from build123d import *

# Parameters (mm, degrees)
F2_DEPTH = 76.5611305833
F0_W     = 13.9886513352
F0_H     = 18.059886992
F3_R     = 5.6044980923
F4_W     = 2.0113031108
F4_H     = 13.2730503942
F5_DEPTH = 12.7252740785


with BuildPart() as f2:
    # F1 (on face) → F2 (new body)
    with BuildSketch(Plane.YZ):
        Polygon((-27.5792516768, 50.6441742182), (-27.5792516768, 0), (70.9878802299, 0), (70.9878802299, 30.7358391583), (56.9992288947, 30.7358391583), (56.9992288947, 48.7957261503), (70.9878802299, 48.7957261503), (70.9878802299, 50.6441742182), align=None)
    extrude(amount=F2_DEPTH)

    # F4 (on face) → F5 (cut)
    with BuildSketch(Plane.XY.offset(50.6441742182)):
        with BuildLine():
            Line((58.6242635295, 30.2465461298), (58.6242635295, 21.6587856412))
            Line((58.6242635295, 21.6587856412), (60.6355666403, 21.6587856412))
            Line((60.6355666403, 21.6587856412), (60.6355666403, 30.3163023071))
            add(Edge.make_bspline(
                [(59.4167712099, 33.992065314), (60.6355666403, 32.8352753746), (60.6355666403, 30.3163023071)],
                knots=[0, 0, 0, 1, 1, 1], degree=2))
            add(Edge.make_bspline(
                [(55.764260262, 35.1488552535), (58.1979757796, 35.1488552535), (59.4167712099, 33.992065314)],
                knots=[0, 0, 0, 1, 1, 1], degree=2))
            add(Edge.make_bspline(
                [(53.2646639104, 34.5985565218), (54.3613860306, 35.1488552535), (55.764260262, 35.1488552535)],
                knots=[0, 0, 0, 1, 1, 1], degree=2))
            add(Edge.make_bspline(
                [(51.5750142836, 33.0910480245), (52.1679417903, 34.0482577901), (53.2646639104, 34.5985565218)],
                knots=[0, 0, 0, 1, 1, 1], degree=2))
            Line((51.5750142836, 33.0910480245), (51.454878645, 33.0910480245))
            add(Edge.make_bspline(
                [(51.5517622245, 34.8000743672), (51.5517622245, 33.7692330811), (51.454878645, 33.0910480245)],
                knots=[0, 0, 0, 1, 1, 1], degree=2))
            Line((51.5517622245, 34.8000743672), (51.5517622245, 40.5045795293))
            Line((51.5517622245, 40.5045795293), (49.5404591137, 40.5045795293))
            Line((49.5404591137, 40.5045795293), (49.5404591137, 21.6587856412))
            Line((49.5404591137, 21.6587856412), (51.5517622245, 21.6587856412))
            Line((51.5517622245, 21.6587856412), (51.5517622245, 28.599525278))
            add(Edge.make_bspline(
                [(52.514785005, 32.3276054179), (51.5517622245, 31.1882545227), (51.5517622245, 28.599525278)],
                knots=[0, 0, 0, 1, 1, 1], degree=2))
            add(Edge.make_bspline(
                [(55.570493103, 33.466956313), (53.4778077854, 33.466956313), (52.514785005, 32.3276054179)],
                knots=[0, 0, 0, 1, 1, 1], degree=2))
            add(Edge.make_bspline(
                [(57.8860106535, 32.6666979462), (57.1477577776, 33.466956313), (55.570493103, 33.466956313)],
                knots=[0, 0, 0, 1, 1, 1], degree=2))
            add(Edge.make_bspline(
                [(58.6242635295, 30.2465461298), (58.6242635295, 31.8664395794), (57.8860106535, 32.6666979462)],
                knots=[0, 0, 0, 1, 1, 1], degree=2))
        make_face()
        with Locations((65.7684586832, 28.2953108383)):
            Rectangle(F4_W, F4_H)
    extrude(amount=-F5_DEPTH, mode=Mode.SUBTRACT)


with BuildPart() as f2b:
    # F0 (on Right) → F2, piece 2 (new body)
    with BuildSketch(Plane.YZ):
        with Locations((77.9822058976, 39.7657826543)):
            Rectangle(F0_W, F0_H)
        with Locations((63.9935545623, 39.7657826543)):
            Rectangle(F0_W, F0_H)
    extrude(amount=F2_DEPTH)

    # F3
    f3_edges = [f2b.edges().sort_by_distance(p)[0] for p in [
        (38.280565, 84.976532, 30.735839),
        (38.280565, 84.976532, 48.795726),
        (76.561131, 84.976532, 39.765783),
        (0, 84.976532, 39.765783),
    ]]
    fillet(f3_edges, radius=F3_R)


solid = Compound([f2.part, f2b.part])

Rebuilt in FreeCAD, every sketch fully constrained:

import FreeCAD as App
import Part
import Sketcher
Q = App.Units.Quantity


def edges_at(feature, points):
    """Names of the edges that pass closest to the given points."""
    edges = feature.Shape.Edges
    near = lambda p: min(range(len(edges)), key=lambda i: edges[i].distToShape(Part.Vertex(*p))[0])
    return sorted({f"Edge{near(p) + 1}" for p in points})

doc = App.newDocument("Part")
body = doc.addObject("PartDesign::Body", "Body")

sketch1 = doc.addObject("Sketcher::SketchObject", "Sketch")
body.addObject(sketch1)
sketch1.AttachmentSupport = (doc.YZ_Plane, [""])
sketch1.MapMode = "FlatFace"
sketch1.addGeometry([
    Part.LineSegment(App.Vector(-27.6, 50.6, 0), App.Vector(-27.6, 0, 0)),
    Part.LineSegment(App.Vector(-27.6, 0, 0), App.Vector(71, 0, 0)),
    Part.LineSegment(App.Vector(71, 0, 0), App.Vector(71, 30.7, 0)),
    Part.LineSegment(App.Vector(71, 30.7, 0), App.Vector(57, 30.7, 0)),
    Part.LineSegment(App.Vector(57, 30.7, 0), App.Vector(57, 48.8, 0)),
    Part.LineSegment(App.Vector(57, 48.8, 0), App.Vector(71, 48.8, 0)),
    Part.LineSegment(App.Vector(71, 48.8, 0), App.Vector(71, 50.6, 0)),
    Part.LineSegment(App.Vector(71, 50.6, 0), App.Vector(-27.6, 50.6, 0)),
], False)
sketch1.addConstraint([
    Sketcher.Constraint("Coincident", 0, 2, 1, 1),
    Sketcher.Constraint("Coincident", 1, 2, 2, 1),
    Sketcher.Constraint("Coincident", 2, 2, 3, 1),
    Sketcher.Constraint("Coincident", 3, 2, 4, 1),
    Sketcher.Constraint("Coincident", 4, 2, 5, 1),
    Sketcher.Constraint("Coincident", 5, 2, 6, 1),
    Sketcher.Constraint("Coincident", 6, 2, 7, 1),
    Sketcher.Constraint("Coincident", 7, 2, 0, 1),
    Sketcher.Constraint("Vertical", 0),
    Sketcher.Constraint("Horizontal", 1),
    Sketcher.Constraint("Vertical", 2),
    Sketcher.Constraint("Horizontal", 3),
    Sketcher.Constraint("Vertical", 4),
    Sketcher.Constraint("Horizontal", 5),
    Sketcher.Constraint("Vertical", 6),
    Sketcher.Constraint("Horizontal", 7),
    Sketcher.Constraint("PointOnObject", 0, 2, -1),
    Sketcher.Constraint("Vertical", 2, 2, 5, 2),
    Sketcher.Constraint("DistanceX", 1, 1, 1, 2, Q("98.567132 mm")),
    Sketcher.Constraint("DistanceX", 3, 2, 3, 1, Q("13.988651 mm")),
    Sketcher.Constraint("DistanceY", 2, 1, 2, 2, Q("30.735839 mm")),
    Sketcher.Constraint("DistanceY", 6, 1, 6, 2, Q("1.848448 mm")),
    Sketcher.Constraint("DistanceY", 0, 2, 0, 1, Q("50.644174 mm")),
    Sketcher.Constraint("DistanceX", 0, 2, -1, 1, Q("27.579252 mm")),
])
pad1 = doc.addObject("PartDesign::Pad", "Pad")
body.addObject(pad1)
pad1.Profile = sketch1
pad1.Length = 76.561131

sketch2 = doc.addObject("Sketcher::SketchObject", "Sketch001")
body.addObject(sketch2)
sketch2.AttachmentSupport = (doc.XY_Plane, [""])
sketch2.MapMode = "FlatFace"
sketch2.AttachmentOffset = App.Placement(App.Vector(0, 0, 50.644174), App.Rotation())
sketch2.addGeometry([
    Part.LineSegment(App.Vector(58.624264, 30.246546, 0), App.Vector(58.624264, 21.658786, 0)),
    Part.LineSegment(App.Vector(58.624264, 21.658786, 0), App.Vector(60.635567, 21.658786, 0)),
    Part.LineSegment(App.Vector(60.635567, 21.658786, 0), App.Vector(60.635567, 30.316302, 0)),
    Part.BSplineCurve([App.Vector(59.416771, 33.992065, 0), App.Vector(60.635567, 32.835275, 0), App.Vector(60.635567, 30.316302, 0)], [3, 3], [0, 1], False, 2, [1, 1, 1], False),
    Part.BSplineCurve([App.Vector(53.264664, 34.598557, 0), App.Vector(54.361386, 35.148855, 0), App.Vector(58.197976, 35.148855, 0), App.Vector(59.416771, 33.992065, 0)], [3, 1, 3], [0, 1, 2.73480663], False, 2, [1, 1, 1, 1], False),
    Part.BSplineCurve([App.Vector(51.575014, 33.091048, 0), App.Vector(52.167942, 34.048258, 0), App.Vector(53.264664, 34.598557, 0)], [3, 3], [0, 1], False, 2, [1, 1, 1], False),
    Part.LineSegment(App.Vector(51.575014, 33.091048, 0), App.Vector(51.454879, 33.091048, 0)),
    Part.BSplineCurve([App.Vector(51.551762, 34.800074, 0), App.Vector(51.551762, 33.769233, 0), App.Vector(51.454879, 33.091048, 0)], [3, 3], [0, 1], False, 2, [1, 1, 1], False),
    Part.LineSegment(App.Vector(51.551762, 34.800074, 0), App.Vector(51.551762, 40.50458, 0)),
    Part.LineSegment(App.Vector(51.551762, 40.50458, 0), App.Vector(49.540459, 40.50458, 0)),
    Part.LineSegment(App.Vector(49.540459, 40.50458, 0), App.Vector(49.540459, 21.658786, 0)),
    Part.LineSegment(App.Vector(49.540459, 21.658786, 0), App.Vector(51.551762, 21.658786, 0)),
    Part.LineSegment(App.Vector(51.551762, 21.658786, 0), App.Vector(51.551762, 28.599525, 0)),
    Part.BSplineCurve([App.Vector(52.514785, 32.327605, 0), App.Vector(51.551762, 31.188255, 0), App.Vector(51.551762, 28.599525, 0)], [3, 3], [0, 1], False, 2, [1, 1, 1], False),
    Part.BSplineCurve([App.Vector(57.886011, 32.666698, 0), App.Vector(57.147758, 33.466956, 0), App.Vector(53.477808, 33.466956, 0), App.Vector(52.514785, 32.327605, 0)], [3, 1, 3], [0, 1, 2.326781327], False, 2, [1, 1, 1, 1], False),
    Part.BSplineCurve([App.Vector(58.624264, 30.246546, 0), App.Vector(58.624264, 31.86644, 0), App.Vector(57.886011, 32.666698, 0)], [3, 3], [0, 1], False, 2, [1, 1, 1], False),
    Part.LineSegment(App.Vector(64.762807, 34.931836, 0), App.Vector(64.762807, 21.658786, 0)),
    Part.LineSegment(App.Vector(64.762807, 21.658786, 0), App.Vector(66.77411, 21.658786, 0)),
    Part.LineSegment(App.Vector(66.77411, 21.658786, 0), App.Vector(66.77411, 34.931836, 0)),
    Part.LineSegment(App.Vector(66.77411, 34.931836, 0), App.Vector(64.762807, 34.931836, 0)),
], False)
sketch2.addConstraint([
    Sketcher.Constraint("Block", 3),
    Sketcher.Constraint("Block", 4),
    Sketcher.Constraint("Block", 5),
    Sketcher.Constraint("Block", 7),
    Sketcher.Constraint("Block", 13),
    Sketcher.Constraint("Block", 14),
    Sketcher.Constraint("Block", 15),
    Sketcher.Constraint("Coincident", 0, 2, 1, 1),
    Sketcher.Constraint("Coincident", 1, 2, 2, 1),
    Sketcher.Constraint("Coincident", 2, 2, 3, 2),
    Sketcher.Constraint("Coincident", 5, 1, 6, 1),
    Sketcher.Constraint("Coincident", 6, 2, 7, 2),
    Sketcher.Constraint("Coincident", 7, 1, 8, 1),
    Sketcher.Constraint("Coincident", 8, 2, 9, 1),
    Sketcher.Constraint("Coincident", 9, 2, 10, 1),
    Sketcher.Constraint("Coincident", 10, 2, 11, 1),
    Sketcher.Constraint("Coincident", 11, 2, 12, 1),
    Sketcher.Constraint("Coincident", 12, 2, 13, 2),
    Sketcher.Constraint("Coincident", 15, 1, 0, 1),
    Sketcher.Constraint("Coincident", 16, 2, 17, 1),
    Sketcher.Constraint("Coincident", 17, 2, 18, 1),
    Sketcher.Constraint("Coincident", 18, 2, 19, 1),
    Sketcher.Constraint("Coincident", 19, 2, 16, 1),
    Sketcher.Constraint("Vertical", 0),
    Sketcher.Constraint("Horizontal", 1),
    Sketcher.Constraint("Vertical", 2),
    Sketcher.Constraint("Vertical", 8),
    Sketcher.Constraint("Horizontal", 9),
    Sketcher.Constraint("Vertical", 10),
    Sketcher.Constraint("Horizontal", 11),
    Sketcher.Constraint("Vertical", 12),
    Sketcher.Constraint("Vertical", 16),
    Sketcher.Constraint("Horizontal", 17),
    Sketcher.Constraint("Vertical", 18),
    Sketcher.Constraint("Horizontal", 19),
    Sketcher.Constraint("Horizontal", 1, 2, 10, 2),
    Sketcher.Constraint("Horizontal", 11, 2, 16, 2),
    Sketcher.Constraint("Equal", 1, 9),
    Sketcher.Constraint("Equal", 11, 17),
    Sketcher.Constraint("DistanceY", 0, 2, 0, 1, Q("8.58776 mm")),
    Sketcher.Constraint("DistanceY", 16, 2, 16, 1, Q("13.27305 mm")),
    Sketcher.Constraint("DistanceY", 8, 1, 8, 2, Q("5.704505 mm")),
    Sketcher.Constraint("DistanceX", -1, 1, 17, 2, Q("66.77411 mm")),
])
pocket1 = doc.addObject("PartDesign::Pocket", "Pocket")
body.addObject(pocket1)
pocket1.Profile = sketch2
pocket1.Length = 12.725274
body2 = doc.addObject("PartDesign::Body", "Body001")

sketch3 = doc.addObject("Sketcher::SketchObject", "Sketch002")
body2.addObject(sketch3)
sketch3.AttachmentSupport = (doc.getObject("YZ_Plane001"), [""])
sketch3.MapMode = "FlatFace"
sketch3.addGeometry([
    Part.LineSegment(App.Vector(85, 31, 0), App.Vector(85, 49, 0)),
    Part.LineSegment(App.Vector(85, 49, 0), App.Vector(57, 49, 0)),
    Part.LineSegment(App.Vector(57, 49, 0), App.Vector(57, 31, 0)),
    Part.LineSegment(App.Vector(57, 31, 0), App.Vector(85, 31, 0)),
], False)
sketch3.addConstraint([
    Sketcher.Constraint("Coincident", 0, 2, 1, 1),
    Sketcher.Constraint("Coincident", 1, 2, 2, 1),
    Sketcher.Constraint("Coincident", 2, 2, 3, 1),
    Sketcher.Constraint("Coincident", 3, 2, 0, 1),
    Sketcher.Constraint("Vertical", 0),
    Sketcher.Constraint("Horizontal", 1),
    Sketcher.Constraint("Vertical", 2),
    Sketcher.Constraint("Horizontal", 3),
    Sketcher.Constraint("DistanceX", 1, 2, 1, 1, Q("27.977303 mm")),
    Sketcher.Constraint("DistanceY", 0, 1, 0, 2, Q("18.059887 mm")),
    Sketcher.Constraint("DistanceX", -1, 1, 0, 2, Q("84.976532 mm")),
    Sketcher.Constraint("DistanceY", -1, 1, 2, 2, Q("30.735839 mm")),
])
pad2 = doc.addObject("PartDesign::Pad", "Pad001")
body2.addObject(pad2)
pad2.Profile = sketch3
pad2.Length = 76.561131
doc.recompute()

fillet = doc.addObject("PartDesign::Fillet", "Fillet")
body2.addObject(fillet)
fillet.Base = (pad2, edges_at(pad2, [
    (38.281, 84.977, 30.736),
    (38.281, 84.977, 48.796),
    (76.561, 84.977, 39.766),
    (0, 84.977, 39.766),
]))
fillet.Radius = 5.604498

doc.recompute()
